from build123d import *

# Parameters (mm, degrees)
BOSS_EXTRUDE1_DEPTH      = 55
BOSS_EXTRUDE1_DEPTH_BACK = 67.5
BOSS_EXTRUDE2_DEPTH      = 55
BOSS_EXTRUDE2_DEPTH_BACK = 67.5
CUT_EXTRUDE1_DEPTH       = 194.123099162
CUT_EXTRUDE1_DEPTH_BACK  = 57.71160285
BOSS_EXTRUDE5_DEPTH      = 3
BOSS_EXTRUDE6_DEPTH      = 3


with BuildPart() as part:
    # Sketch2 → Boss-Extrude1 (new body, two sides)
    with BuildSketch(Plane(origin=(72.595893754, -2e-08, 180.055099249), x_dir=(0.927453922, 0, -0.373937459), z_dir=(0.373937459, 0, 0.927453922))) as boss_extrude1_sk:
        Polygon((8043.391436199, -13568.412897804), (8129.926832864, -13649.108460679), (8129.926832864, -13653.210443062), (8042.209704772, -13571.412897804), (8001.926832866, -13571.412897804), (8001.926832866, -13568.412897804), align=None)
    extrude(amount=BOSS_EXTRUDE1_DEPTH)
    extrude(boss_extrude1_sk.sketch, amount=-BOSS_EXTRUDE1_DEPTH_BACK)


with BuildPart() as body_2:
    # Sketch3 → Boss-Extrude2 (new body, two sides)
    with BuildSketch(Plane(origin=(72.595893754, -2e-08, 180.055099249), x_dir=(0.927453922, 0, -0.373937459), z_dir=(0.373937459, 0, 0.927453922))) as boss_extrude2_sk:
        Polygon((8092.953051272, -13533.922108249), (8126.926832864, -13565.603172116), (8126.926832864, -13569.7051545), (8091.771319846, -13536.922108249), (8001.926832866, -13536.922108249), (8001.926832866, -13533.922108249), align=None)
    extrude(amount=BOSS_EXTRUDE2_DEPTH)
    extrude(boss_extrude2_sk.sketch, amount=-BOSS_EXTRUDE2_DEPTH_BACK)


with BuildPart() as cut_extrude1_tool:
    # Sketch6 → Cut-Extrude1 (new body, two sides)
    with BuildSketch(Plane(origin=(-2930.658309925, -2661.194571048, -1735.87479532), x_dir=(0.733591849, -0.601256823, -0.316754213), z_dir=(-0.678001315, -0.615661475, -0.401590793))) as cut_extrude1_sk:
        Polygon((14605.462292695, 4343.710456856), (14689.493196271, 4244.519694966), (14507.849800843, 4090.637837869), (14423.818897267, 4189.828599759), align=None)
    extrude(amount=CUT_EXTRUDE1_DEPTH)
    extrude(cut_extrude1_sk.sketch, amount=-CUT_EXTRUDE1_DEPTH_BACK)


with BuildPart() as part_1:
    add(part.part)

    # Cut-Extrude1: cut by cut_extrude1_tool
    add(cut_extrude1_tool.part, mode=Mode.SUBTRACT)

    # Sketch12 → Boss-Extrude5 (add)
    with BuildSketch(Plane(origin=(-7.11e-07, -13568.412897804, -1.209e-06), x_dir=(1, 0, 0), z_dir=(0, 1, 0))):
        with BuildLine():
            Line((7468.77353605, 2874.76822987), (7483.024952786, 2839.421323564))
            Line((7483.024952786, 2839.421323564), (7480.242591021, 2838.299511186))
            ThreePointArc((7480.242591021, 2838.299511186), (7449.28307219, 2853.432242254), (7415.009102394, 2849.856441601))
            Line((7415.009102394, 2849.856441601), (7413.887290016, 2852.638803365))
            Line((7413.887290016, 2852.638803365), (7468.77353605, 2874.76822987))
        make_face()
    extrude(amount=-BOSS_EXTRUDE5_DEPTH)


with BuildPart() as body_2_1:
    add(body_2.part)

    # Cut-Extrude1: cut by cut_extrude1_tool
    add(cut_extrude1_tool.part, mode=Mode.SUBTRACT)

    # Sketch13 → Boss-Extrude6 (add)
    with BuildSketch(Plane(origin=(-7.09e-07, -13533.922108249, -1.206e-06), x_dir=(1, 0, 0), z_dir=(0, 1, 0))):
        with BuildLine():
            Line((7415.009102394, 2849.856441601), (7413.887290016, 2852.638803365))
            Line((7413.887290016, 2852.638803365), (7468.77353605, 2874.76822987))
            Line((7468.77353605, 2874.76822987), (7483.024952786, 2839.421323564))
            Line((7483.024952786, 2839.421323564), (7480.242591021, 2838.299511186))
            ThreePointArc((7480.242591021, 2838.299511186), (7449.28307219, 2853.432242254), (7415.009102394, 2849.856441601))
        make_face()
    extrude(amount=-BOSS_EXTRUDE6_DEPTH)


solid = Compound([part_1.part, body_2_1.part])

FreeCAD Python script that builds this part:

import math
import FreeCAD as App
import Part
import Sketcher

V = App.Vector
Q = App.Units.Quantity

doc = App.newDocument("Part")
body = doc.addObject("PartDesign::Body", "Body")

# Sketch on an angled plane
sketch1 = body.newObject("Sketcher::SketchObject", "Sketch")
sketch1.Placement = App.Placement(V(72.595894, 0, 180.055099), App.Rotation(V(0.927453922, 0, -0.373937459), V(0, 1.000000001, 0), V(0.373937459, 0, 0.927453922), "ZXY"))
sketch1.addGeometry(Part.LineSegment(V(8129.926838, -13649.108479, 0), V(8043.391442, -13568.412916, 0)), False)
sketch1.addGeometry(Part.LineSegment(V(8043.391442, -13568.412916, 0), V(8001.926838, -13568.412916, 0)), False)
sketch1.addGeometry(Part.LineSegment(V(8001.926838, -13568.412916, 0), V(8001.926838, -13571.412916, 0)), False)
sketch1.addGeometry(Part.LineSegment(V(8001.926838, -13571.412916, 0), V(8042.20971, -13571.412916, 0)), False)
sketch1.addGeometry(Part.LineSegment(V(8042.20971, -13571.412916, 0), V(8129.926838, -13653.210462, 0)), False)
sketch1.addGeometry(Part.LineSegment(V(8129.926838, -13653.210462, 0), V(8129.926838, -13649.108479, 0)), False)
sketch1.addConstraint(Sketcher.Constraint("Coincident", 0, 2, 1, 1))
sketch1.addConstraint(Sketcher.Constraint("Coincident", 1, 2, 2, 1))
sketch1.addConstraint(Sketcher.Constraint("Coincident", 2, 2, 3, 1))
sketch1.addConstraint(Sketcher.Constraint("Coincident", 3, 2, 4, 1))
sketch1.addConstraint(Sketcher.Constraint("Coincident", 4, 2, 5, 1))
sketch1.addConstraint(Sketcher.Constraint("Coincident", 5, 2, 0, 1))
sketch1.addConstraint(Sketcher.Constraint("Horizontal", 1))
sketch1.addConstraint(Sketcher.Constraint("Vertical", 2))
sketch1.addConstraint(Sketcher.Constraint("Horizontal", 3))
sketch1.addConstraint(Sketcher.Constraint("Vertical", 5))
sketch1.addConstraint(Sketcher.Constraint("Parallel", 0, 4))
sketch1.addConstraint(Sketcher.Constraint("DistanceY", 2, 2, 2, 1, 3.0))
sketch1.addConstraint(Sketcher.Constraint("Angle", 0, Q("137 deg")))
sketch1.addConstraint(Sketcher.Constraint("DistanceX", 2, 2, 4, 2, 128.0))
sketch1.addConstraint(Sketcher.Constraint("DistanceX", 3, 1, 3, 2, 40.282872))
sketch1.addConstraint(Sketcher.Constraint("DistanceX", 1, 2, 1, 1, 41.464603))
sketch1.addConstraint(Sketcher.Constraint("DistanceX", -1, 1, 0, 2, 8043.391442))
sketch1.addConstraint(Sketcher.Constraint("DistanceY", 4, 2, -1, 1, 13653.210462))
pad1 = body.newObject("PartDesign::Pad", "Pad")
pad1.Profile = sketch1
pad1.Type = "TwoLengths"
pad1.Length = 55
pad1.Length2 = 67.5
body2 = doc.addObject("PartDesign::Body", "Body001")

# Sketch on an angled plane
sketch2 = body2.newObject("Sketcher::SketchObject", "Sketch001")
sketch2.Placement = App.Placement(V(72.595894, 0, 180.055099), App.Rotation(V(0.927453922, 0, -0.373937459), V(0, 1.000000001, 0), V(0.373937459, 0, 0.927453922), "ZXY"))
sketch2.addGeometry(Part.LineSegment(V(8126.9, -13565.6, 0), V(8093, -13533.9, 0)), False)
sketch2.addGeometry(Part.LineSegment(V(8093, -13533.9, 0), V(8001.9, -13533.9, 0)), False)
sketch2.addGeometry(Part.LineSegment(V(8001.9, -13533.9, 0), V(8001.9, -13536.9, 0)), False)
sketch2.addGeometry(Part.LineSegment(V(8001.9, -13536.9, 0), V(8091.8, -13536.9, 0)), False)
sketch2.addGeometry(Part.LineSegment(V(8091.8, -13536.9, 0), V(8126.9, -13569.7, 0)), False)
sketch2.addGeometry(Part.LineSegment(V(8126.9, -13569.7, 0), V(8126.9, -13565.6, 0)), False)
sketch2.addConstraint(Sketcher.Constraint("Coincident", 0, 2, 1, 1))
sketch2.addConstraint(Sketcher.Constraint("Coincident", 1, 2, 2, 1))
sketch2.addConstraint(Sketcher.Constraint("Coincident", 2, 2, 3, 1))
sketch2.addConstraint(Sketcher.Constraint("Coincident", 3, 2, 4, 1))
sketch2.addConstraint(Sketcher.Constraint("Coincident", 4, 2, 5, 1))
sketch2.addConstraint(Sketcher.Constraint("Coincident", 5, 2, 0, 1))
sketch2.addConstraint(Sketcher.Constraint("Horizontal", 1))
sketch2.addConstraint(Sketcher.Constraint("Vertical", 2))
sketch2.addConstraint(Sketcher.Constraint("Horizontal", 3))
sketch2.addConstraint(Sketcher.Constraint("Vertical", 5))
sketch2.addConstraint(Sketcher.Constraint("Parallel", 0, 4))
sketch2.addConstraint(Sketcher.Constraint("DistanceY", 2, 2, 2, 1, 3.0))
sketch2.addConstraint(Sketcher.Constraint("Angle", 0, Q("137 deg")))
sketch2.addConstraint(Sketcher.Constraint("DistanceX", 2, 2, 4, 2, 125.0))
sketch2.addConstraint(Sketcher.Constraint("Distance", 4, 48.069098))
sketch2.addConstraint(Sketcher.Constraint("DistanceX", 1, 2, 1, 1, 91.026218))
sketch2.addConstraint(Sketcher.Constraint("DistanceX", -1, 1, 1, 2, 8001.926838))
sketch2.addConstraint(Sketcher.Constraint("DistanceY", 5, 2, -1, 1, 13565.60319))
pad2 = body2.newObject("PartDesign::Pad", "Pad001")
pad2.Profile = sketch2
pad2.Type = "TwoLengths"
pad2.Length = 55
pad2.Length2 = 67.5
body3 = doc.addObject("PartDesign::Body", "Body002")

# Sketch on an angled plane
sketch3 = body3.newObject("Sketcher::SketchObject", "Sketch002")
sketch3.Placement = App.Placement(V(-2930.65831, -2661.194571, -1735.874795), App.Rotation(V(0.733591849, -0.601256823, -0.316754213), V(-0.046445838, -0.509363505, 0.859297156), V(-0.678001315, -0.615661475, -0.401590793), "ZXY"))
sketch3.addGeometry(Part.LineSegment(V(14689, 4245, 0), V(14605, 4344, 0)), False)
sketch3.addGeometry(Part.LineSegment(V(14605, 4344, 0), V(14424, 4190, 0)), False)
sketch3.addGeometry(Part.LineSegment(V(14424, 4190, 0), V(14508, 4091, 0)), False)
sketch3.addGeometry(Part.LineSegment(V(14508, 4091, 0), V(14689, 4245, 0)), False)
sketch3.addConstraint(Sketcher.Constraint("Coincident", 0, 2, 1, 1))
sketch3.addConstraint(Sketcher.Constraint("Coincident", 1, 2, 2, 1))
sketch3.addConstraint(Sketcher.Constraint("Coincident", 2, 2, 3, 1))
sketch3.addConstraint(Sketcher.Constraint("Coincident", 3, 2, 0, 1))
sketch3.addConstraint(Sketcher.Constraint("Perpendicular", 0, 1))
sketch3.addConstraint(Sketcher.Constraint("Perpendicular", 1, 2))
sketch3.addConstraint(Sketcher.Constraint("Perpendicular", 2, 3))
sketch3.addConstraint(Sketcher.Constraint("Distance", 0, 130.0))
sketch3.addConstraint(Sketcher.Constraint("DistanceX", 1, 2, 3, 2, 265.674299))
sketch3.addConstraint(Sketcher.Constraint("Distance", 1, 238.06291))
sketch3.addConstraint(Sketcher.Constraint("DistanceX", -1, 1, 1, 2, 14423.818891))
sketch3.addConstraint(Sketcher.Constraint("DistanceY", -1, 1, 0, 2, 4343.710455))
pad3 = body3.newObject("PartDesign::Pad", "Pad002")
pad3.Profile = sketch3
pad3.Type = "TwoLengths"
pad3.Length = 194.123099
pad3.Length2 = 57.711603
doc.recompute()

body4 = doc.addObject("PartDesign::Body", "Body003")
body4.BaseFeature = body3
boolean = body.newObject("PartDesign::Boolean", "Boolean")
boolean.Type = "Cut"
boolean.addObjects([body4])
doc.recompute()

# Sketch on XZ plane
sketch4 = body.newObject("Sketcher::SketchObject", "Sketch003")
sketch4.AttachmentSupport = (doc.getObject("XZ_Plane"), [""])
sketch4.MapMode = "FlatFace"
sketch4.AttachmentOffset = App.Placement(V(0, 0, 13568.412898), App.Rotation())
sketch4.addGeometry(Part.LineSegment(V(7483.024952, -2839.421325, 0), V(7468.773535, -2874.768231, 0)), False)
sketch4.addGeometry(Part.LineSegment(V(7468.773535, -2874.768231, 0), V(7413.887289, -2852.638805, 0)), False)
sketch4.addGeometry(Part.LineSegment(V(7413.887289, -2852.638805, 0), V(7415.009102, -2849.856443, 0)), False)
sketch4.addGeometry(Part.ArcOfCircle(Part.Circle(V(7438.380193, -2791.890573, 0), V(0, 0, 1), 62.5), math.radians(-111.958657), math.radians(-47.948496)), False)
sketch4.addGeometry(Part.LineSegment(V(7480.24259, -2838.299512, 0), V(7483.024952, -2839.421325, 0)), False)
sketch4.addConstraint(Sketcher.Constraint("Coincident", 0, 2, 1, 1))
sketch4.addConstraint(Sketcher.Constraint("Coincident", 1, 2, 2, 1))
sketch4.addConstraint(Sketcher.Constraint("Coincident", 2, 2, 3, 1))
sketch4.addConstraint(Sketcher.Constraint("Coincident", 3, 2, 4, 1))
sketch4.addConstraint(Sketcher.Constraint("Coincident", 4, 2, 0, 1))
sketch4.addConstraint(Sketcher.Constraint("Perpendicular", 0, 1))
sketch4.addConstraint(Sketcher.Constraint("Perpendicular", 1, 2))
sketch4.addConstraint(Sketcher.Constraint("Perpendicular", 2, 4))
sketch4.addConstraint(Sketcher.Constraint("Equal", 2, 4))
sketch4.addConstraint(Sketcher.Constraint("Radius", 3, 62.5))
sketch4.addConstraint(Sketcher.Constraint("Distance", 2, 3.0))
sketch4.addConstraint(Sketcher.Constraint("DistanceX", -1, 1, 2, 2, 7415.009102))
sketch4.addConstraint(Sketcher.Constraint("DistanceX", 1, 2, 3, 2, 66.355301))
sketch4.addConstraint(Sketcher.Constraint("DistanceY", 0, 2, -1, 1, 2874.768231))
sketch4.addConstraint(Sketcher.Constraint("DistanceX", -1, 1, 1, 2, 7413.887289))
sketch4.addConstraint(Sketcher.Constraint("DistanceY", 0, 2, 3, 3, 82.877658))
pad4 = body.newObject("PartDesign::Pad", "Pad003")
pad4.Profile = sketch4
pad4.Length = 3
doc.recompute()

boolean2 = body2.newObject("PartDesign::Boolean", "Boolean001")
boolean2.Type = "Cut"
boolean2.addObjects([body3])

# Sketch on XZ plane
sketch5 = body2.newObject("Sketcher::SketchObject", "Sketch004")
sketch5.AttachmentSupport = (doc.getObject("XZ_Plane001"), [""])
sketch5.MapMode = "FlatFace"
sketch5.AttachmentOffset = App.Placement(V(0, 0, 13533.922108), App.Rotation())
sketch5.addGeometry(Part.LineSegment(V(7413.9, -2852.6, 0), V(7415, -2849.9, 0)), False)
sketch5.addGeometry(Part.ArcOfCircle(Part.Circle(V(7438.4, -2791.9, 0), V(0, 0, 1), 62.5), math.radians(-112), math.radians(-48)), False)
sketch5.addGeometry(Part.LineSegment(V(7480.2, -2838.3, 0), V(7483, -2839.4, 0)), False)
sketch5.addGeometry(Part.LineSegment(V(7483, -2839.4, 0), V(7468.8, -2874.8, 0)), False)
sketch5.addGeometry(Part.LineSegment(V(7468.8, -2874.8, 0), V(7413.9, -2852.6, 0)), False)
sketch5.addConstraint(Sketcher.Constraint("Coincident", 0, 2, 1, 1))
sketch5.addConstraint(Sketcher.Constraint("Coincident", 1, 2, 2, 1))
sketch5.addConstraint(Sketcher.Constraint("Coincident", 2, 2, 3, 1))
sketch5.addConstraint(Sketcher.Constraint("Coincident", 3, 2, 4, 1))
sketch5.addConstraint(Sketcher.Constraint("Coincident", 4, 2, 0, 1))
sketch5.addConstraint(Sketcher.Constraint("Perpendicular", 0, 2))
sketch5.addConstraint(Sketcher.Constraint("Perpendicular", 2, 3))
sketch5.addConstraint(Sketcher.Constraint("Perpendicular", 3, 4))
sketch5.addConstraint(Sketcher.Constraint("Equal", 0, 2))
sketch5.addConstraint(Sketcher.Constraint("Radius", 1, 62.5))
sketch5.addConstraint(Sketcher.Constraint("Distance", 0, 3.0))
sketch5.addConstraint(Sketcher.Constraint("DistanceX", -1, 1, 0, 2, 7415.009102))
sketch5.addConstraint(Sketcher.Constraint("DistanceX", 4, 2, 1, 2, 66.355301))
sketch5.addConstraint(Sketcher.Constraint("DistanceY", 3, 2, -1, 1, 2874.768231))
sketch5.addConstraint(Sketcher.Constraint("DistanceX", -1, 1, 4, 2, 7413.887289))
sketch5.addConstraint(Sketcher.Constraint("DistanceX", 0, 2, 1, 3, 23.371091))
pad5 = body2.newObject("PartDesign::Pad", "Pad004")
pad5.Profile = sketch5
pad5.Length = 3

doc.recompute()
